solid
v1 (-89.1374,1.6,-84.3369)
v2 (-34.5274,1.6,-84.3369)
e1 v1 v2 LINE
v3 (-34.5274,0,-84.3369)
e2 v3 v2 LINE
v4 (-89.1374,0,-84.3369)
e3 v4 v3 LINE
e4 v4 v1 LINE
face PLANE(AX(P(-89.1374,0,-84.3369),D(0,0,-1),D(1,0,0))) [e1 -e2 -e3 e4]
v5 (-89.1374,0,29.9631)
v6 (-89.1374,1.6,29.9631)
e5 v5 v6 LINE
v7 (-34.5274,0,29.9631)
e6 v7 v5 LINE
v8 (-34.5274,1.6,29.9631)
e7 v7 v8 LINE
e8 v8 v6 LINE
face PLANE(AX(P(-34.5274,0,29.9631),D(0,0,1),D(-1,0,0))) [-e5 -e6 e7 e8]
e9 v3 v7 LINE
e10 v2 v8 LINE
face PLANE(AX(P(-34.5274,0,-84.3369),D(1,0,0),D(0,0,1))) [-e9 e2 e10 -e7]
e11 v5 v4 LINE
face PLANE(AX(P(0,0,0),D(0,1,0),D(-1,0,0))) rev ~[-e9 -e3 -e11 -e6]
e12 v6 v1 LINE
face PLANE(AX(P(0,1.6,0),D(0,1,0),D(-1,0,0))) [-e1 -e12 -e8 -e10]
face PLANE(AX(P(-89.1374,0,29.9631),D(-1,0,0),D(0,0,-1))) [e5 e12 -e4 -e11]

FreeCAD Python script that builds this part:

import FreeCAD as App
import Part
import Sketcher
from FreeCAD import Vector
Q = App.Units.Quantity

doc = App.newDocument("Part")
params = doc.addObject("Spreadsheet::Sheet", "Params")
for row, (alias, value) in enumerate([
    ("sketch1_height", "4.5 in"),
    ("sketch1_width", "2.15 in"),
    ("pad1_length", "0.0629921 in"),
], start=1):
    params.set(f"A{row}", alias)
    params.set(f"B{row}", "=" + value)
    params.setAlias(f"B{row}", alias)

body = doc.addObject("PartDesign::Body", "Body")

sketch1 = body.newObject("Sketcher::SketchObject", "Sketch")
sketch1.AttachmentSupport = (doc.getObject("XZ_Plane"), [""])
sketch1.MapMode = "FlatFace"
sketch1.addGeometry([
    Part.LineSegment(Vector(-89, 30, 0), Vector(-35, 30, 0)),
    Part.LineSegment(Vector(-35, 30, 0), Vector(-35, -84, 0)),
    Part.LineSegment(Vector(-35, -84, 0), Vector(-89, -84, 0)),
    Part.LineSegment(Vector(-89, -84, 0), Vector(-89, 30, 0)),
], False)
sketch1.addConstraint([
    Sketcher.Constraint("Coincident", 0, 2, 1, 1),
    Sketcher.Constraint("Coincident", 1, 2, 2, 1),
    Sketcher.Constraint("Coincident", 2, 2, 3, 1),
    Sketcher.Constraint("Coincident", 3, 2, 0, 1),
    Sketcher.Constraint("Horizontal", 0),
    Sketcher.Constraint("Vertical", 1),
    Sketcher.Constraint("Horizontal", 2),
    Sketcher.Constraint("Vertical", 3),
    Sketcher.Constraint("DistanceY", 1, 2, 1, 1, Q("4.5 in")),
    Sketcher.Constraint("DistanceX", 0, 1, 0, 2, Q("2.15 in")),
    Sketcher.Constraint("DistanceX", 0, 2, -1, 1, 34.5274),
    Sketcher.Constraint("DistanceY", -1, 1, 0, 2, 29.963),
])
sketch1.setExpression("Constraints[8]", "Params.sketch1_height")
sketch1.setExpression("Constraints[9]", "Params.sketch1_width")
pad1 = body.newObject("PartDesign::Pad", "Pad")
pad1.Profile = sketch1
pad1.setExpression("Length", "Params.pad1_length")
pad1.Reversed = True

doc.recompute()
